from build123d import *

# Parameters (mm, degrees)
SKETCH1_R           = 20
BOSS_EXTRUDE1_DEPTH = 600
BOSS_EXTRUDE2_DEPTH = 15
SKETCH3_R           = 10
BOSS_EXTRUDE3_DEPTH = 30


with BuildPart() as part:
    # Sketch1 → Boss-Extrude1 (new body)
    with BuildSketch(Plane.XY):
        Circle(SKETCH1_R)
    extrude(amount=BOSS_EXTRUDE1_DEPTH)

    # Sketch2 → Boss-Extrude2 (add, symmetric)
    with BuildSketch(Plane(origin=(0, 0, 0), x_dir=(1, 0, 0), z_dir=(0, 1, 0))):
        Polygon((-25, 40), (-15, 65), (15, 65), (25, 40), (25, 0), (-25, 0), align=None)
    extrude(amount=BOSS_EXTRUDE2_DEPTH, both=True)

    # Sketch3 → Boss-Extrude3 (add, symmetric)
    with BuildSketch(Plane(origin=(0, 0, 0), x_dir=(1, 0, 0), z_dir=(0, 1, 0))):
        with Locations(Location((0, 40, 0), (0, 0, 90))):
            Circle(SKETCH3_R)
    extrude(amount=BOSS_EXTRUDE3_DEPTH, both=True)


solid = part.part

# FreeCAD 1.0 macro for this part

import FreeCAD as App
import Part
import Sketcher


def add_polygon(sketch, points):
    """Adds a closed chain of lines whose ends are joined by coincident constraints."""
    first, n = sketch.GeometryCount, len(points)
    for a, b in zip(points, points[1:] + points[:1]):
        sketch.addGeometry(Part.LineSegment(App.Vector(*a, 0), App.Vector(*b, 0)), False)
    for i in range(n):
        sketch.addConstraint(Sketcher.Constraint("Coincident", first + i, 2, first + (i + 1) % n, 1))

doc = App.newDocument("Part")
params = doc.addObject("Spreadsheet::Sheet", "Params")
for row, (alias, value) in enumerate([
    ("sketch1_diameter", "40 mm"),
    ("pad1_length", "600 mm"),
    ("sketch2_width", "50 mm"),
    ("sketch2_width2", "30 mm"),
    ("sketch2_height", "40 mm"),
    ("pad2_length", "30 mm"),
    ("sketch3_diameter", "20 mm"),
    ("pad3_length", "60 mm"),
], start=1):
    params.set(f"A{row}", alias)
    params.set(f"B{row}", "=" + value)
    params.setAlias(f"B{row}", alias)

body = doc.addObject("PartDesign::Body", "Body")

# Sketch on XY plane
sketch1 = body.newObject("Sketcher::SketchObject", "Sketch")
sketch1.AttachmentSupport = (doc.getObject("XY_Plane"), [""])
sketch1.MapMode = "FlatFace"
sketch1.addGeometry(Part.Circle(App.Vector(0, 0, 0), App.Vector(0, 0, 1), 20), False)
sketch1.addConstraint([
    Sketcher.Constraint("Coincident", 0, 3, -1, 1),
    Sketcher.Constraint("Diameter", 0, 40.0),
])
sketch1.setExpression("Constraints[1]", "Params.sketch1_diameter")
pad1 = body.newObject("PartDesign::Pad", "Pad")
pad1.Profile = sketch1
pad1.setExpression("Length", "Params.pad1_length")

# Sketch on XZ plane
sketch2 = body.newObject("Sketcher::SketchObject", "Sketch001")
sketch2.AttachmentSupport = (doc.getObject("XZ_Plane"), [""])
sketch2.MapMode = "FlatFace"
add_polygon(sketch2, [(-15, -65), (-25, -40), (-25, 0), (25, 0), (25, -40), (15, -65)])  # lines 0-5
sketch2.addConstraint([
    Sketcher.Constraint("Vertical", 1),
    Sketcher.Constraint("Horizontal", 2),
    Sketcher.Constraint("Vertical", 3),
    Sketcher.Constraint("Horizontal", 5),
    Sketcher.Constraint("Symmetric", 1, 2, 2, 2, -1, 1),
    Sketcher.Constraint("Horizontal", 0, 2, 3, 2),
    Sketcher.Constraint("Equal", 0, 4),
    Sketcher.Constraint("DistanceX", 2, 1, 2, 2, 50.0),
    Sketcher.Constraint("DistanceX", 5, 2, 5, 1, 30.0),
    Sketcher.Constraint("DistanceY", 1, 1, 1, 2, 40.0),
    Sketcher.Constraint("DistanceY", 4, 2, -1, 1, 65.0),
])
sketch2.setExpression("Constraints[13]", "Params.sketch2_width")
sketch2.setExpression("Constraints[14]", "Params.sketch2_width2")
sketch2.setExpression("Constraints[15]", "Params.sketch2_height")
pad2 = body.newObject("PartDesign::Pad", "Pad001")
pad2.Profile = sketch2
pad2.setExpression("Length", "Params.pad2_length")
pad2.Midplane = True

# Sketch on XZ plane
sketch3 = body.newObject("Sketcher::SketchObject", "Sketch002")
sketch3.AttachmentSupport = (doc.getObject("XZ_Plane"), [""])
sketch3.MapMode = "FlatFace"
sketch3.addGeometry(Part.Circle(App.Vector(0, -40, 0), App.Vector(0, 0, 1), 10), False)
sketch3.addConstraint([
    Sketcher.Constraint("PointOnObject", 0, 3, -2),
    Sketcher.Constraint("Diameter", 0, 20.0),
    Sketcher.Constraint("DistanceY", 0, 3, -1, 1, 40.0),
])
sketch3.setExpression("Constraints[1]", "Params.sketch3_diameter")
pad3 = body.newObject("PartDesign::Pad", "Pad002")
pad3.Profile = sketch3
pad3.setExpression("Length", "Params.pad3_length")
pad3.Midplane = True

doc.recompute()
